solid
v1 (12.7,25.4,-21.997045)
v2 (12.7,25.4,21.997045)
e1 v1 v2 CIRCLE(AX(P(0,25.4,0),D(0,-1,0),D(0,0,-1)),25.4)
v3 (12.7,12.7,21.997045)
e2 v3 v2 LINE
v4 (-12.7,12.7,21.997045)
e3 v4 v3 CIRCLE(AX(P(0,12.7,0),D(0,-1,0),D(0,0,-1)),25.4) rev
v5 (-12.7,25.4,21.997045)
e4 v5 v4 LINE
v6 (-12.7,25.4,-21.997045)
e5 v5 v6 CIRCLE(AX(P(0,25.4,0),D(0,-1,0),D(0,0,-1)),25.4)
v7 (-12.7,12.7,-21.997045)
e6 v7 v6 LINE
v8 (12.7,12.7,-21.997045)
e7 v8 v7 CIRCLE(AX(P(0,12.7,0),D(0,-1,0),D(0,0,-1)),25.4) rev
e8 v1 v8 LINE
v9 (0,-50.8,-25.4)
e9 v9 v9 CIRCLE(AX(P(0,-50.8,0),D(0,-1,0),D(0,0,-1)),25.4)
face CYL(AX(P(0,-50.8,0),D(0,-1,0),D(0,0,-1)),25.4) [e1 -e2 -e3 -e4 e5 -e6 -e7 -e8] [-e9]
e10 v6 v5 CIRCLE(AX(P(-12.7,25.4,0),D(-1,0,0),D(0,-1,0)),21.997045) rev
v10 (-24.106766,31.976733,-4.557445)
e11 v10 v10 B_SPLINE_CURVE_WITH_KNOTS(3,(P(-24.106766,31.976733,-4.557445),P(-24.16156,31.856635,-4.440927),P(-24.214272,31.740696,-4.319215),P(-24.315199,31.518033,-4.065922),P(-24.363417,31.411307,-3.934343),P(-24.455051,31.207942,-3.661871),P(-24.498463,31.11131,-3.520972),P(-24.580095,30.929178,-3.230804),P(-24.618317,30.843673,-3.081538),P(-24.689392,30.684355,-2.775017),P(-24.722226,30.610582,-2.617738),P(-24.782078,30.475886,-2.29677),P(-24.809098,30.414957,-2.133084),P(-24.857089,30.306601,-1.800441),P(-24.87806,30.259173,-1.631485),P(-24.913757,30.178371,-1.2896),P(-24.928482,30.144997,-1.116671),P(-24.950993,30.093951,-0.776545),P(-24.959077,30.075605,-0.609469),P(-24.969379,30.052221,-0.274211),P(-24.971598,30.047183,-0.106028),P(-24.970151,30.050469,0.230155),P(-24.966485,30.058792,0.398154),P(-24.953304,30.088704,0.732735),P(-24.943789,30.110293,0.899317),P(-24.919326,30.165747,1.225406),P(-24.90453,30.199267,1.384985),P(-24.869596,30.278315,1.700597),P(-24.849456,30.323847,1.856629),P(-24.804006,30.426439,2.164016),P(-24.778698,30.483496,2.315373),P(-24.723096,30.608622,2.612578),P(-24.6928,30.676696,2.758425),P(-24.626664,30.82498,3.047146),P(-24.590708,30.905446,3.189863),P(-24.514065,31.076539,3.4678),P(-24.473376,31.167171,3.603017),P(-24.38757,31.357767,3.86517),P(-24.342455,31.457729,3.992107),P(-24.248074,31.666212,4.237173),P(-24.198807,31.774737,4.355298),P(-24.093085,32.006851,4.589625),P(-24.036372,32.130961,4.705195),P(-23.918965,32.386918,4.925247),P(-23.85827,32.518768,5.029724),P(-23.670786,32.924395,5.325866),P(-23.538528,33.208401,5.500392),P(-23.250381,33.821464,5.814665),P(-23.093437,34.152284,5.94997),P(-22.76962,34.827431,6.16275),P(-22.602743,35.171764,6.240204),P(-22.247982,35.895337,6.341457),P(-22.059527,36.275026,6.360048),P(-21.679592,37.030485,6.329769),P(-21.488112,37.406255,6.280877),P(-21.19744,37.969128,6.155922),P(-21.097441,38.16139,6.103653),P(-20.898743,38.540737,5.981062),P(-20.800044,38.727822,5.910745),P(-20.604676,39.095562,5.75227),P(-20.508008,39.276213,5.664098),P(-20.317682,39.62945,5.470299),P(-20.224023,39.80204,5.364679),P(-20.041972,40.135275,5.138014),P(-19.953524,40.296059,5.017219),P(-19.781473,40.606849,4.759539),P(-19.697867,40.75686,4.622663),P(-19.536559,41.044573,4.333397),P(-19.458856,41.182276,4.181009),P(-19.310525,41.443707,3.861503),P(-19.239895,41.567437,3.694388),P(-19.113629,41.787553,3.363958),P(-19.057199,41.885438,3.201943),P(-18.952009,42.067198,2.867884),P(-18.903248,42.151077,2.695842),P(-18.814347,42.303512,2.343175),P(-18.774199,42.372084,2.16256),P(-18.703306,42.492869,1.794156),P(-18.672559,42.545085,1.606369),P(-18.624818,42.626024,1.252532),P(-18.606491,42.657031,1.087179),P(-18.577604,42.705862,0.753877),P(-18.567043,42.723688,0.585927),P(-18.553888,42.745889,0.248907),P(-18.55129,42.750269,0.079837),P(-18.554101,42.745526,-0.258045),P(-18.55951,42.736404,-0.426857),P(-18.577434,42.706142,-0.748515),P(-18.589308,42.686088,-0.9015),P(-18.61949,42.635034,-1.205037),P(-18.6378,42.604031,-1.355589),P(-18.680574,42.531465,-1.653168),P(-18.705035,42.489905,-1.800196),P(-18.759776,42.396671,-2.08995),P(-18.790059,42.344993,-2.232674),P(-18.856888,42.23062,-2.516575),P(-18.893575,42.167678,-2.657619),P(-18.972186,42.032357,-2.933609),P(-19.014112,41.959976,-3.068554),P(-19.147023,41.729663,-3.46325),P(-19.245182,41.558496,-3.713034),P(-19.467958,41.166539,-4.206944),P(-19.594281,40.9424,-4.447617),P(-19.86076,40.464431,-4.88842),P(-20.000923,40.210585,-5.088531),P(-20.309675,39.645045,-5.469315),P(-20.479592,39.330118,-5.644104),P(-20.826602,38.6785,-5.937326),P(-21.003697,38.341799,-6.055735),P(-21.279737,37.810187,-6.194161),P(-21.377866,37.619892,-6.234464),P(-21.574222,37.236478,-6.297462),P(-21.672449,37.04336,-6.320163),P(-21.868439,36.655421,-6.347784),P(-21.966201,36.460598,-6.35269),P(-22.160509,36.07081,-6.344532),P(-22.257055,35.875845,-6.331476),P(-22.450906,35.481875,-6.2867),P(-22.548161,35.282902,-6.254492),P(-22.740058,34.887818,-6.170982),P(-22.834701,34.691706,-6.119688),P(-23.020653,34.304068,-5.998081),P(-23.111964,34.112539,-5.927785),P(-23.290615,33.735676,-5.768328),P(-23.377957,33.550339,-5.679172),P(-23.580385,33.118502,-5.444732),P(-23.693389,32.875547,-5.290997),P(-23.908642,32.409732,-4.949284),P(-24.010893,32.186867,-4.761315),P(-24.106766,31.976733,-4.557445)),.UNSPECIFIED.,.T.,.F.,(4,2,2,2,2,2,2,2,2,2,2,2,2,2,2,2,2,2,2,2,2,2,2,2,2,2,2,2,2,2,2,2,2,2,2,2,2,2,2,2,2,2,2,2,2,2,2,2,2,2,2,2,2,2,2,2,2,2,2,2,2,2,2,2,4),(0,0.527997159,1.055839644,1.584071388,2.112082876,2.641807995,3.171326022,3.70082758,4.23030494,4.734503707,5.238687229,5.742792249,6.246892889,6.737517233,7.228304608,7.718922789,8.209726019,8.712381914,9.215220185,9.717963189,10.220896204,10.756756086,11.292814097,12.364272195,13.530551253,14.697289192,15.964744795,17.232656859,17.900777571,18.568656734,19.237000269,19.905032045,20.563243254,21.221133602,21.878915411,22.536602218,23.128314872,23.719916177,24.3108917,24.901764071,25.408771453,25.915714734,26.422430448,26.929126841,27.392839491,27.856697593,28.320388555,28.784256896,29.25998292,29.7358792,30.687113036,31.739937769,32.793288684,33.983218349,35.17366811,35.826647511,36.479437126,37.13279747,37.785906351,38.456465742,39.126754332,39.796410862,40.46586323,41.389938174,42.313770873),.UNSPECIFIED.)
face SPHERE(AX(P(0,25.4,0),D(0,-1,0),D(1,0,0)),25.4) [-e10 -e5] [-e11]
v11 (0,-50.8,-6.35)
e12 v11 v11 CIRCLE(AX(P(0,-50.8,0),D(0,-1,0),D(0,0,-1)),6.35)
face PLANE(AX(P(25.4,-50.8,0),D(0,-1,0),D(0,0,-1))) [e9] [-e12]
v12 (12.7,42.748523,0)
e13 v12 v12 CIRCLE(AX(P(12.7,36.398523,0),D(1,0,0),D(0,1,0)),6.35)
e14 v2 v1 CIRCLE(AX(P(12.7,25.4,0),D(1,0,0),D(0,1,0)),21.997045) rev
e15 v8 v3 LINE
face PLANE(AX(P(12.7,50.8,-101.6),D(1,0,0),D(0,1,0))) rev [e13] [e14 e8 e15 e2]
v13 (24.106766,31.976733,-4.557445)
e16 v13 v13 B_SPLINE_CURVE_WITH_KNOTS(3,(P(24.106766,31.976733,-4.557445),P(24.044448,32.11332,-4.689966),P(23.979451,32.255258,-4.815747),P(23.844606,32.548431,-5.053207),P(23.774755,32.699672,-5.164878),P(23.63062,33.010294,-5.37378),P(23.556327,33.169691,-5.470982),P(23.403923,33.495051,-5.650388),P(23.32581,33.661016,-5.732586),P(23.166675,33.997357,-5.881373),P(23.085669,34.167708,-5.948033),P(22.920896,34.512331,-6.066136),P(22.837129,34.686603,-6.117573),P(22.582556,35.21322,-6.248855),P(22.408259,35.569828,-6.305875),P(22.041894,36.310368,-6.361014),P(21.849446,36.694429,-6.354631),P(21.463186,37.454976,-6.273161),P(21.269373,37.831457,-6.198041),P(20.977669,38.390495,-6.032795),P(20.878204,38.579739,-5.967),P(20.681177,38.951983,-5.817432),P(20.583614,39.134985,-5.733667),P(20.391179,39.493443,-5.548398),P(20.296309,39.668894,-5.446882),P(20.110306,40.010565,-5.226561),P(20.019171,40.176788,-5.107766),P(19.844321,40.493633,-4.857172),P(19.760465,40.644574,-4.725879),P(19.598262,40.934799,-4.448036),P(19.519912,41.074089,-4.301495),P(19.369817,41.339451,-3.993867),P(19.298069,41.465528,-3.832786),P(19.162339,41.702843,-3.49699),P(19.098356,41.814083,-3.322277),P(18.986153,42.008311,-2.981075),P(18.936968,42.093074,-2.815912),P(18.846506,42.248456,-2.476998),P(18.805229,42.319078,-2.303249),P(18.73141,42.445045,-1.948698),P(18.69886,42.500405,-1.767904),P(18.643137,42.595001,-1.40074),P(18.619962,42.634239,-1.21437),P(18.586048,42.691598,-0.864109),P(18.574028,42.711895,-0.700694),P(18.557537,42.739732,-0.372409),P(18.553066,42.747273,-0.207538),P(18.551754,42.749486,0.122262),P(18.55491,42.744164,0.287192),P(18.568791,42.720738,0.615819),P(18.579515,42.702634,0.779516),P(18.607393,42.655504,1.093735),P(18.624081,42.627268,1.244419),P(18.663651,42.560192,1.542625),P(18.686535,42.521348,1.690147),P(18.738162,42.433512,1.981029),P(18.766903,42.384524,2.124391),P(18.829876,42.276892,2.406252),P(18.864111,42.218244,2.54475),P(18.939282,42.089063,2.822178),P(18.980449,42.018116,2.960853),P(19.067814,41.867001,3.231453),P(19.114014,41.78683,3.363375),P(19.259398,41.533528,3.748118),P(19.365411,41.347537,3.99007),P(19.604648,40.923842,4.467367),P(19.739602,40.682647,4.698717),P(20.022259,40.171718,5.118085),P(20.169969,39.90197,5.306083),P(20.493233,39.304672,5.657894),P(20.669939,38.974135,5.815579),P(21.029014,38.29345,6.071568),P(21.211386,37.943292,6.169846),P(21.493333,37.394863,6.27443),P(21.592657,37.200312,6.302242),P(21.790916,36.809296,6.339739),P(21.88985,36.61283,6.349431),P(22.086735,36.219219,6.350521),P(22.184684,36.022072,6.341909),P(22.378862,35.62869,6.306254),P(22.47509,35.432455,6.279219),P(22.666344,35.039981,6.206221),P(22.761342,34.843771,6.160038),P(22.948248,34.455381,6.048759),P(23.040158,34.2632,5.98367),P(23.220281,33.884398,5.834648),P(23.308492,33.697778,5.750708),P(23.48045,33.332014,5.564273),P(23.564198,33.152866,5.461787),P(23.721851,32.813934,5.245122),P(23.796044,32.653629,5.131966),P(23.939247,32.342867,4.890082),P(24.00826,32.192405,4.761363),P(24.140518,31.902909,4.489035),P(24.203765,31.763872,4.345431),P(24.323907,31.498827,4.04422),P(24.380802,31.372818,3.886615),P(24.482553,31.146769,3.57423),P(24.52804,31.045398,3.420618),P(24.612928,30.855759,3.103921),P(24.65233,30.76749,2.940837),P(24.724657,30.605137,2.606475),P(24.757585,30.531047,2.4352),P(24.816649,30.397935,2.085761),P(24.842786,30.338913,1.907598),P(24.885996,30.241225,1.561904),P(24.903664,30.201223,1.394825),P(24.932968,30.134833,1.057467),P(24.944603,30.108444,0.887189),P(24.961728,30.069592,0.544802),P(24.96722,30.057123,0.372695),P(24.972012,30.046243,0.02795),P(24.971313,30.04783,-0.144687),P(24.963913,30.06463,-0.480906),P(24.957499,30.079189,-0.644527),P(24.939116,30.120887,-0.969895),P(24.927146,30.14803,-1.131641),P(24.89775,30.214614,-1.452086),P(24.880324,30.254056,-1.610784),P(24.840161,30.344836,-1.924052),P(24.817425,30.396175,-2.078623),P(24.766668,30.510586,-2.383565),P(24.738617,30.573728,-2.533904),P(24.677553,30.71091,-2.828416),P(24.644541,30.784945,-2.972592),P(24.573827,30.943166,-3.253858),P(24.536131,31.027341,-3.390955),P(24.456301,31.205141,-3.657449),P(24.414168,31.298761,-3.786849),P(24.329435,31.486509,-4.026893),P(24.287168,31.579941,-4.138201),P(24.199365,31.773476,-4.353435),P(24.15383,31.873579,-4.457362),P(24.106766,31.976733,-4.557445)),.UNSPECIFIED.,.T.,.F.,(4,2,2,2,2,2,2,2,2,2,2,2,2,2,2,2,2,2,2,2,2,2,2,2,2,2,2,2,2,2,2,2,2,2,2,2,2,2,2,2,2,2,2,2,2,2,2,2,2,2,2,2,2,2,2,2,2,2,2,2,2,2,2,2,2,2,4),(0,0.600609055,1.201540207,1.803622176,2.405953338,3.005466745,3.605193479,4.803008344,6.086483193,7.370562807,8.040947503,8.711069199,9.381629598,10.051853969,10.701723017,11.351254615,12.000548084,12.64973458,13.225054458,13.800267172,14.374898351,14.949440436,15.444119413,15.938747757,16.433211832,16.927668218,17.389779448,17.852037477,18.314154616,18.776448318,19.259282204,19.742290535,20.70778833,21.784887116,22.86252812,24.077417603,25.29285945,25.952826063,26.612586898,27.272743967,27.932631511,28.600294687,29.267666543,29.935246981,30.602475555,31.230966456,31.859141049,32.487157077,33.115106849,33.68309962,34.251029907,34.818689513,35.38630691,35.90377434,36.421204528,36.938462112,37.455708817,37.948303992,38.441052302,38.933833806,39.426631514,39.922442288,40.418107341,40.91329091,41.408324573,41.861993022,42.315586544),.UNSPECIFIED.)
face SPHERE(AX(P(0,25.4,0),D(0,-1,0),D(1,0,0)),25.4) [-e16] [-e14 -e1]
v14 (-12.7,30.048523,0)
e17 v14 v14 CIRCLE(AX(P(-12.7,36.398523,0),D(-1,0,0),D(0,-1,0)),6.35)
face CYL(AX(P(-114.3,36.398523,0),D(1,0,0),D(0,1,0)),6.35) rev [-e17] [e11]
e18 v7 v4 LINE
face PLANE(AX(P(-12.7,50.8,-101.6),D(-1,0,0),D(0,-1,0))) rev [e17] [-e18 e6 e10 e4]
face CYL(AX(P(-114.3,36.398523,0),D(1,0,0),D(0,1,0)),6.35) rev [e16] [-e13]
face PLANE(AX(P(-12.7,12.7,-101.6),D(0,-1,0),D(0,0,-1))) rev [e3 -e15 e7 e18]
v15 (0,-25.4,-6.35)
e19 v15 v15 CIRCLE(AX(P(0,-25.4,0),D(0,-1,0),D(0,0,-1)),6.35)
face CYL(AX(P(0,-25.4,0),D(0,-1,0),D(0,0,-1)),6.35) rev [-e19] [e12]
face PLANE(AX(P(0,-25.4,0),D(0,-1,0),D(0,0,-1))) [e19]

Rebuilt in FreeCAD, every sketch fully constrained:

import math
import FreeCAD as App
import Part
import Sketcher
Q = App.Units.Quantity


def add_polygon(sketch, points):
    """Adds a closed chain of lines whose ends are joined by coincident constraints."""
    first, n = sketch.GeometryCount, len(points)
    for a, b in zip(points, points[1:] + points[:1]):
        sketch.addGeometry(Part.LineSegment(App.Vector(*a, 0), App.Vector(*b, 0)), False)
    for i in range(n):
        sketch.addConstraint(Sketcher.Constraint("Coincident", first + i, 2, first + (i + 1) % n, 1))

doc = App.newDocument("Part")
body = doc.addObject("PartDesign::Body", "Body")

sketch1 = body.newObject("Sketcher::SketchObject", "Sketch")
sketch1.AttachmentSupport = (doc.getObject("XY_Plane"), [""])
sketch1.MapMode = "FlatFace"
sketch1.addGeometry(Part.LineSegment(App.Vector(0, 51, 0), App.Vector(0, -51, 0)), False)
sketch1.addGeometry(Part.LineSegment(App.Vector(0, -51, 0), App.Vector(25, -51, 0)), False)
sketch1.addGeometry(Part.LineSegment(App.Vector(25, -51, 0), App.Vector(25, 25, 0)), False)
sketch1.addGeometry(Part.ArcOfCircle(Part.Circle(App.Vector(0, 25, 0), App.Vector(0, 0, 1), 25), math.radians(0), math.radians(90)), False)
sketch1.addConstraint(Sketcher.Constraint("Coincident", 0, 2, 1, 1))
sketch1.addConstraint(Sketcher.Constraint("Coincident", 1, 2, 2, 1))
sketch1.addConstraint(Sketcher.Constraint("Tangent", 2, 2, 3, 1))
sketch1.addConstraint(Sketcher.Constraint("Coincident", 3, 2, 0, 1))
sketch1.addConstraint(Sketcher.Constraint("Vertical", 0))
sketch1.addConstraint(Sketcher.Constraint("Horizontal", 1))
sketch1.addConstraint(Sketcher.Constraint("Vertical", 2))
sketch1.addConstraint(Sketcher.Constraint("Symmetric", 0, 2, 3, 2, -1, 1))
sketch1.addConstraint(Sketcher.Constraint("PointOnObject", 3, 3, -2))
sketch1.addConstraint(Sketcher.Constraint("Radius", 3, Q("1 in")))
sketch1.addConstraint(Sketcher.Constraint("DistanceY", 0, 2, 0, 1, Q("4 in")))
revolution = body.newObject("PartDesign::Revolution", "Revolution")
revolution.Profile = sketch1
revolution.ReferenceAxis = (sketch1, ["V_Axis"])
revolution.Angle = 360

sketch2 = body.newObject("Sketcher::SketchObject", "Sketch001")
sketch2.AttachmentSupport = (doc.getObject("XY_Plane"), [""])
sketch2.MapMode = "FlatFace"
add_polygon(sketch2, [(-13, 51), (-13, 13), (13, 13), (13, 51)])
sketch2.addConstraint(Sketcher.Constraint("Vertical", 0))
sketch2.addConstraint(Sketcher.Constraint("Horizontal", 1))
sketch2.addConstraint(Sketcher.Constraint("Vertical", 2))
sketch2.addConstraint(Sketcher.Constraint("Horizontal", 3))
sketch2.addConstraint(Sketcher.Constraint("DistanceX", 1, 1, 1, 2, Q("1 in")))
sketch2.addConstraint(Sketcher.Constraint("DistanceY", 0, 2, 0, 1, Q("1.5 in")))
sketch2.addConstraint(Sketcher.Constraint("DistanceY", -1, 1, 2, 2, Q("2 in")))
sketch2.addConstraint(Sketcher.Constraint("DistanceX", 0, 2, -1, 1, Q("0.5 in")))
pocket1 = body.newObject("PartDesign::Pocket", "Pocket")
pocket1.Profile = sketch2
pocket1.Length = Q("8 in")
pocket1.Midplane = True

sketch3 = body.newObject("Sketcher::SketchObject", "Sketch002")
sketch3.AttachmentSupport = (doc.getObject("YZ_Plane"), [""])
sketch3.MapMode = "FlatFace"
sketch3.AttachmentOffset = App.Placement(App.Vector(0, 0, -0.5 * 25.4), App.Rotation())
sketch3.addGeometry(Part.Circle(App.Vector(36, 0, 0), App.Vector(0, 0, 1), 6), False)
sketch3.addConstraint(Sketcher.Constraint("PointOnObject", 0, 3, -1))
sketch3.addConstraint(Sketcher.Constraint("Diameter", 0, Q("0.5 in")))
sketch3.addConstraint(Sketcher.Constraint("DistanceX", -1, 1, 0, 3, Q("36.398523 mm")))
pocket2 = body.newObject("PartDesign::Pocket", "Pocket001")
pocket2.Profile = sketch3
pocket2.Length = Q("8 in")
pocket2.Midplane = True

sketch4 = body.newObject("Sketcher::SketchObject", "Sketch003")
sketch4.AttachmentSupport = (doc.getObject("XZ_Plane"), [""])
sketch4.MapMode = "FlatFace"
sketch4.AttachmentOffset = App.Placement(App.Vector(0, 0, 2 * 25.4), App.Rotation())
sketch4.addGeometry(Part.Circle(App.Vector(0, 0, 0), App.Vector(0, 0, 1), 6), False)
sketch4.addConstraint(Sketcher.Constraint("Coincident", 0, 3, -1, 1))
sketch4.addConstraint(Sketcher.Constraint("Diameter", 0, Q("0.5 in")))
pocket3 = body.newObject("PartDesign::Pocket", "Pocket002")
pocket3.Profile = sketch4
pocket3.Length = Q("1 in")

doc.recompute()
